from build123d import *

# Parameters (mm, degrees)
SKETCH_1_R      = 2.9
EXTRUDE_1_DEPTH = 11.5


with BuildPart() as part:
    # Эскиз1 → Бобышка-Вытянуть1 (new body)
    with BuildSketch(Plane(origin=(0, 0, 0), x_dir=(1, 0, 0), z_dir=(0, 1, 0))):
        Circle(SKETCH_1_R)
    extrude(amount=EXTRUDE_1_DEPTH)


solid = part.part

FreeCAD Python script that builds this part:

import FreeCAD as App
import Part
import Sketcher

V = App.Vector

doc = App.newDocument("Part")
params = doc.addObject("Spreadsheet::Sheet", "Params")
for row, (alias, value) in enumerate([
    ("sketch1_diameter", "5.8 mm"),
    ("pad1_length", "11.5 mm"),
], start=1):
    params.set(f"A{row}", alias)
    params.set(f"B{row}", "=" + value)
    params.setAlias(f"B{row}", alias)

body = doc.addObject("PartDesign::Body", "Body")

# Sketch on XZ plane
sketch1 = body.newObject("Sketcher::SketchObject", "Sketch")
sketch1.AttachmentSupport = (doc.getObject("XZ_Plane"), [""])
sketch1.MapMode = "FlatFace"
sketch1.addGeometry(Part.Circle(V(0, 0, 0), V(0, 0, 1), 2.9), False)
sketch1.addConstraint([
    Sketcher.Constraint("Coincident", 0, 3, -1, 1),
    Sketcher.Constraint("Diameter", 0, 5.8),
])
sketch1.setExpression("Constraints[1]", "Params.sketch1_diameter")
pad1 = body.newObject("PartDesign::Pad", "Pad")
pad1.Profile = sketch1
pad1.setExpression("Length", "Params.pad1_length")
pad1.Reversed = True

doc.recompute()
